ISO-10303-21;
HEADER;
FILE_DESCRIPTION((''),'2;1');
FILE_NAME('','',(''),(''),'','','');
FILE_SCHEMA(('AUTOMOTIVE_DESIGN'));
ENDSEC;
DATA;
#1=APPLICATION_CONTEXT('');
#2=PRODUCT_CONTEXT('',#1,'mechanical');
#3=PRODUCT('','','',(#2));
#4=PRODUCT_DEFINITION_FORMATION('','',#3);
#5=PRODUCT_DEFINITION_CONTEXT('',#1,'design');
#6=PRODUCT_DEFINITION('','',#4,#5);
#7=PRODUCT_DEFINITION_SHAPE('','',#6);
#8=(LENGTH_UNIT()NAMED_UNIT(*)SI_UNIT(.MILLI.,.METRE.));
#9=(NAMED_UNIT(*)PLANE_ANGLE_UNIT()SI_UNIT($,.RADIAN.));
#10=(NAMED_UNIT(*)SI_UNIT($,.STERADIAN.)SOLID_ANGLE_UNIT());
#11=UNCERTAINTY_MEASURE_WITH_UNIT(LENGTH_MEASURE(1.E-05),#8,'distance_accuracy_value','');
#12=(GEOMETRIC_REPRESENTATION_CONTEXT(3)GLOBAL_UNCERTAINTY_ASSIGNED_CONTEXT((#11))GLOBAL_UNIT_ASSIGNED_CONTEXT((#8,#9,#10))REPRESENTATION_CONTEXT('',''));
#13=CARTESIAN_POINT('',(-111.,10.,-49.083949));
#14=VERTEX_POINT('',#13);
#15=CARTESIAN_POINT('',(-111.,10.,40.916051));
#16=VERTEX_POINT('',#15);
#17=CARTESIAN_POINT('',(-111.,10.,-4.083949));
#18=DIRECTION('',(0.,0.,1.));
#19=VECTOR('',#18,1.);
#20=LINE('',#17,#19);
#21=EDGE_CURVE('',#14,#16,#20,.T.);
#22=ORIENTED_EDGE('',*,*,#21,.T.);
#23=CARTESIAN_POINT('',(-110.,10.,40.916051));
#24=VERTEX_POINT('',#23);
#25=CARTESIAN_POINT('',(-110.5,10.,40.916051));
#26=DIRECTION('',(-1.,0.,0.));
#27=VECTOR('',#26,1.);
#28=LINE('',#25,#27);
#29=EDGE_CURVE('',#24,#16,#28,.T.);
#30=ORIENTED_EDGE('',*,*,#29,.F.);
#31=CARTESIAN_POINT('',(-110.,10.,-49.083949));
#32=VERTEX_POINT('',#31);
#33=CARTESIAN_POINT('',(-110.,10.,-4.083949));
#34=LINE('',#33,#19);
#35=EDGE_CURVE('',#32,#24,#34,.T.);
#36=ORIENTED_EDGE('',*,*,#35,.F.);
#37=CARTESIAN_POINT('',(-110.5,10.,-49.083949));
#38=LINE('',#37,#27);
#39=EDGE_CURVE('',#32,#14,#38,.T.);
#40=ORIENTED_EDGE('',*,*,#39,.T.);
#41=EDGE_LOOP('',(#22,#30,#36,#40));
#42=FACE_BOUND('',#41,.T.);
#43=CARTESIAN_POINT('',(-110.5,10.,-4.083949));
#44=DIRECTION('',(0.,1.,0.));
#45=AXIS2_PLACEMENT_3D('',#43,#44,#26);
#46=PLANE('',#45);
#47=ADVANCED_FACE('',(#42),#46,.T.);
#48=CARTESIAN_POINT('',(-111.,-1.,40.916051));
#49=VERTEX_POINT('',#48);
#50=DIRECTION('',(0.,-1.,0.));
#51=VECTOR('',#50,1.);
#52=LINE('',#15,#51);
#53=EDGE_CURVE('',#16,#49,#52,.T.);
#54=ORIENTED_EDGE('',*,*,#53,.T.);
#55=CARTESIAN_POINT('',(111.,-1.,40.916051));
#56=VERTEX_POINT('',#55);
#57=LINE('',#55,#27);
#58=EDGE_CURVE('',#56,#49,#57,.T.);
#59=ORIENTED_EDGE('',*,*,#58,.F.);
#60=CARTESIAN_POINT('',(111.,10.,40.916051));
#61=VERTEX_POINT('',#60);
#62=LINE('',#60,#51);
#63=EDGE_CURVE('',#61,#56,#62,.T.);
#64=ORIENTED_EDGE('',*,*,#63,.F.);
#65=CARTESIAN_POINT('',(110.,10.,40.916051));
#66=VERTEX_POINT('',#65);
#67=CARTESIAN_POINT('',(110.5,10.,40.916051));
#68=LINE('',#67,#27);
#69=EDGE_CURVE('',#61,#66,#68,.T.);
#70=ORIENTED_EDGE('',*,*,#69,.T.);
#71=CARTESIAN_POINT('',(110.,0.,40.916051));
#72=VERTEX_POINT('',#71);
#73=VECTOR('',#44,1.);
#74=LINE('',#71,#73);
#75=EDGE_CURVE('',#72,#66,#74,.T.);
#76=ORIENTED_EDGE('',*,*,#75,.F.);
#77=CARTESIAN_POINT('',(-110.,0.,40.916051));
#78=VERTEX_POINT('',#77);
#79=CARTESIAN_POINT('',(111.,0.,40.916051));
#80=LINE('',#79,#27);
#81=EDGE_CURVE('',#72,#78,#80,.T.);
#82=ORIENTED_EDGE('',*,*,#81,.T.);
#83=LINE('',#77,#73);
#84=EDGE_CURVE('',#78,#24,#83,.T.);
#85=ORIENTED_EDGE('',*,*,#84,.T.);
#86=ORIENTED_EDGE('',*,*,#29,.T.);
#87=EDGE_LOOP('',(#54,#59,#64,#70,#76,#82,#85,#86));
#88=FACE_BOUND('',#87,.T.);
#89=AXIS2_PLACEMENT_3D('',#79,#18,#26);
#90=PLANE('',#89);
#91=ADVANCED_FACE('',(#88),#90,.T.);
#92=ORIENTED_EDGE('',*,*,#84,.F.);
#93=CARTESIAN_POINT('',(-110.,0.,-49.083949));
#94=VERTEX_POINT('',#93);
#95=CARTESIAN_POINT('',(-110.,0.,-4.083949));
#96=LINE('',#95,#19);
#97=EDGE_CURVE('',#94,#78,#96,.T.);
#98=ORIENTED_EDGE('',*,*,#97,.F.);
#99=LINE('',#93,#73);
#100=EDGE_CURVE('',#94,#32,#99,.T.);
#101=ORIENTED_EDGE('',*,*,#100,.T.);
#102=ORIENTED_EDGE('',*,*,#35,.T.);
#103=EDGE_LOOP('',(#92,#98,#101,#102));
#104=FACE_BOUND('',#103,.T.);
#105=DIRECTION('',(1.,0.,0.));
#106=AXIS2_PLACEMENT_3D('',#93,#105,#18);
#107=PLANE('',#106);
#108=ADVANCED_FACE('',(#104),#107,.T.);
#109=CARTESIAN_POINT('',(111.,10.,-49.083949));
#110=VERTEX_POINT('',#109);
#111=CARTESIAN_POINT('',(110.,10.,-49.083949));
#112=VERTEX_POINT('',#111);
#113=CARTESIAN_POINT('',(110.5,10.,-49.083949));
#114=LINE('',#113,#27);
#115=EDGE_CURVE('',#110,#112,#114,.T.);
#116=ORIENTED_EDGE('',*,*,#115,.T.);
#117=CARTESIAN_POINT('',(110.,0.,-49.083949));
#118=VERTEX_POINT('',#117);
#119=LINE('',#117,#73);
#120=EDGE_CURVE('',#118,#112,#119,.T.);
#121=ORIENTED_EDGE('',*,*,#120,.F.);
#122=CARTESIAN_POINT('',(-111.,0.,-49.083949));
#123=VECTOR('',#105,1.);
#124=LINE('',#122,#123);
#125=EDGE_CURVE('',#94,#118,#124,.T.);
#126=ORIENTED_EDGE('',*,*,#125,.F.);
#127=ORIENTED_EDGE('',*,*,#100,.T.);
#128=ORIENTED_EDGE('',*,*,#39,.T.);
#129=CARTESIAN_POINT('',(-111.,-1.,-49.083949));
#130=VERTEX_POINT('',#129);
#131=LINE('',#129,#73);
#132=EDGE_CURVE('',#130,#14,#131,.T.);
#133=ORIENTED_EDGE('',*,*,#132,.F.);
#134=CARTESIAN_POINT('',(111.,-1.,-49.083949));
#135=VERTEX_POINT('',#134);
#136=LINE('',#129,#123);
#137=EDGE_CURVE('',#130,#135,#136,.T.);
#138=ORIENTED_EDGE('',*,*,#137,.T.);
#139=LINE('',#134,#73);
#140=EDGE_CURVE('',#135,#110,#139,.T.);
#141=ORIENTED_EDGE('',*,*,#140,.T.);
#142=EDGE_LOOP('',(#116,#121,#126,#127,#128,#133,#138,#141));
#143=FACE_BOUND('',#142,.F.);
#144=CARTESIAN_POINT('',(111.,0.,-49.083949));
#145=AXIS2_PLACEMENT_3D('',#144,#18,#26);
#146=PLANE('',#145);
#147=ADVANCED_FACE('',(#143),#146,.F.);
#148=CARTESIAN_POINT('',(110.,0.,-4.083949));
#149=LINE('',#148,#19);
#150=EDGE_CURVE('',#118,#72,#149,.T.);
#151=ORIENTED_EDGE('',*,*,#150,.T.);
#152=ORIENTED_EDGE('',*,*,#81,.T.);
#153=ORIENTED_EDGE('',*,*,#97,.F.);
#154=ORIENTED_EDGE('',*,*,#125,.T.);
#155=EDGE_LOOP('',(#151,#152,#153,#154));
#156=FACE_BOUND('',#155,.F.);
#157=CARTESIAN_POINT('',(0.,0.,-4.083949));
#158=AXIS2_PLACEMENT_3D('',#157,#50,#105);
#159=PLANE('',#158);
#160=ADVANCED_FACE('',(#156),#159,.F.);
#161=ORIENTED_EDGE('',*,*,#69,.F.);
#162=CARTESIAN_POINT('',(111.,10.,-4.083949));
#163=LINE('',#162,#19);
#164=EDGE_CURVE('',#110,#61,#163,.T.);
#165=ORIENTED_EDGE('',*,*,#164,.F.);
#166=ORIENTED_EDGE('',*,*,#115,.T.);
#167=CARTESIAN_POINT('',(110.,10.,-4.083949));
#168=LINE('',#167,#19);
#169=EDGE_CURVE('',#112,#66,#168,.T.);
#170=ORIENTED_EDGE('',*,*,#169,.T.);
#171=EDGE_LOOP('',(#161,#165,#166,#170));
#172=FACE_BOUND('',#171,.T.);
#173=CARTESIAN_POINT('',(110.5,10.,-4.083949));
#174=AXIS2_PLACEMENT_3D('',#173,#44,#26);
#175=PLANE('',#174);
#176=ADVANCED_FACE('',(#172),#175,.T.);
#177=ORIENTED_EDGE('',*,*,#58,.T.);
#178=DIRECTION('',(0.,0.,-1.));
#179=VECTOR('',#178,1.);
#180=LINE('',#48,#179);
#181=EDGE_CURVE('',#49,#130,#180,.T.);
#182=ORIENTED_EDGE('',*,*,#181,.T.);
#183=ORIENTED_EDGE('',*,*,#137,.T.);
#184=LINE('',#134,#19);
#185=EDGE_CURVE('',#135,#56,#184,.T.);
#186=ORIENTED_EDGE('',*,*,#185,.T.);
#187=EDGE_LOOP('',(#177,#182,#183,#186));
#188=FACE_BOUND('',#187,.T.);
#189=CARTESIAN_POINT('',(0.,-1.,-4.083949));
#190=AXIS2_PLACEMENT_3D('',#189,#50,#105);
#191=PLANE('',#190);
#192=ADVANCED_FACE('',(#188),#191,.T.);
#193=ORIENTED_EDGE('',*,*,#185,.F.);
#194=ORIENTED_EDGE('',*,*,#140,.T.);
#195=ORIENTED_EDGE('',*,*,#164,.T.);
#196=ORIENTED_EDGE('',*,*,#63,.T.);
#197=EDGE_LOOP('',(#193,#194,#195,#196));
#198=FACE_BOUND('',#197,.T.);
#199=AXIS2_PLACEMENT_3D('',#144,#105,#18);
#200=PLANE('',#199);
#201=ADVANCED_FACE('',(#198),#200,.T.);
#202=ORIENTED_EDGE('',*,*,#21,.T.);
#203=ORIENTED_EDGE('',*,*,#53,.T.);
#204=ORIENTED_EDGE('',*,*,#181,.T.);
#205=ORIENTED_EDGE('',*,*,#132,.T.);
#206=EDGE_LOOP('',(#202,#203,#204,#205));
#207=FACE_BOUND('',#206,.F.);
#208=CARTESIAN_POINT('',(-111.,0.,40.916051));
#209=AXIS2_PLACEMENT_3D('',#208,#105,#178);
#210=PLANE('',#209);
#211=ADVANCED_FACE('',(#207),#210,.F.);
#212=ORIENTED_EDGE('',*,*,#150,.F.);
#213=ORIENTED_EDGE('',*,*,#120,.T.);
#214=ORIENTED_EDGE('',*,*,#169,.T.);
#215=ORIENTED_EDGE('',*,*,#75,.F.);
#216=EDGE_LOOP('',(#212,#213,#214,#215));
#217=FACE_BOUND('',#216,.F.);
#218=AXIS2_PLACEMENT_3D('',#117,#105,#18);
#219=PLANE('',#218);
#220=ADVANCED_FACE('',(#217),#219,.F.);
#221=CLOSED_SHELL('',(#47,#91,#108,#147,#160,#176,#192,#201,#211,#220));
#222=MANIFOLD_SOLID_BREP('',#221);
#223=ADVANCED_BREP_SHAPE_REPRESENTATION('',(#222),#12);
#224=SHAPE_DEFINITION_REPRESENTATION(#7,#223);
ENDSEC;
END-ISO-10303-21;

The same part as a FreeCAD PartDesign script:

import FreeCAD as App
import Part
import Sketcher
from FreeCAD import Vector
Q = App.Units.Quantity

doc = App.newDocument("Part")
body = doc.addObject("PartDesign::Body", "Body")

# Sketch on XZ plane
sketch1 = body.newObject("Sketcher::SketchObject", "Sketch")
sketch1.AttachmentSupport = (doc.getObject("XZ_Plane"), [""])
sketch1.MapMode = "FlatFace"
sketch1.addGeometry([
    Part.LineSegment(Vector(111, -49.083949, 0), Vector(111, 40.916051, 0)),
    Part.LineSegment(Vector(111, 40.916051, 0), Vector(-111, 40.916051, 0)),
    Part.LineSegment(Vector(-111, 40.916051, 0), Vector(-111, -49.083949, 0)),
    Part.LineSegment(Vector(-111, -49.083949, 0), Vector(111, -49.083949, 0)),
], False)
sketch1.addConstraint([
    Sketcher.Constraint("Coincident", 0, 2, 1, 1),
    Sketcher.Constraint("Coincident", 1, 2, 2, 1),
    Sketcher.Constraint("Coincident", 2, 2, 3, 1),
    Sketcher.Constraint("Coincident", 3, 2, 0, 1),
    Sketcher.Constraint("Vertical", 0),
    Sketcher.Constraint("Horizontal", 1),
    Sketcher.Constraint("Vertical", 2),
    Sketcher.Constraint("Horizontal", 3),
    Sketcher.Constraint("DistanceX", 1, 2, 1, 1, Q("222 mm")),
    Sketcher.Constraint("DistanceY", 0, 1, 0, 2, Q("90 mm")),
    Sketcher.Constraint("DistanceX", -1, 1, 0, 2, Q("111 mm")),
    Sketcher.Constraint("DistanceY", -1, 1, 0, 2, Q("40.916051 mm")),
])
pad1 = body.newObject("PartDesign::Pad", "Pad")
pad1.Profile = sketch1
pad1.Length = 1

# Sketch on XZ plane
sketch2 = body.newObject("Sketcher::SketchObject", "Sketch001")
sketch2.AttachmentSupport = (doc.getObject("XZ_Plane"), [""])
sketch2.MapMode = "FlatFace"
sketch2.addGeometry([
    Part.LineSegment(Vector(111, 40.916051, 0), Vector(111, -49.083949, 0)),  # 0
    Part.LineSegment(Vector(111, -49.083949, 0), Vector(110, -49.083949, 0)),  # 1
    Part.LineSegment(Vector(110, -49.083949, 0), Vector(110, 40.916051, 0)),  # 2
    Part.LineSegment(Vector(110, 40.916051, 0), Vector(111, 40.916051, 0)),  # 3
    Part.LineSegment(Vector(-110, 40.916051, 0), Vector(-110, -49.083949, 0)),  # 4
    Part.LineSegment(Vector(-110, -49.083949, 0), Vector(-111, -49.083949, 0)),  # 5
    Part.LineSegment(Vector(-111, -49.083949, 0), Vector(-111, 40.916051, 0)),  # 6
    Part.LineSegment(Vector(-111, 40.916051, 0), Vector(-110, 40.916051, 0)),  # 7
], False)
sketch2.addConstraint([
    Sketcher.Constraint("Coincident", 0, 2, 1, 1),
    Sketcher.Constraint("Coincident", 1, 2, 2, 1),
    Sketcher.Constraint("Coincident", 2, 2, 3, 1),
    Sketcher.Constraint("Coincident", 3, 2, 0, 1),
    Sketcher.Constraint("Coincident", 4, 2, 5, 1),
    Sketcher.Constraint("Coincident", 5, 2, 6, 1),
    Sketcher.Constraint("Coincident", 6, 2, 7, 1),
    Sketcher.Constraint("Coincident", 7, 2, 4, 1),
    Sketcher.Constraint("Vertical", 0),
    Sketcher.Constraint("Horizontal", 1),
    Sketcher.Constraint("Vertical", 2),
    Sketcher.Constraint("Horizontal", 3),
    Sketcher.Constraint("Vertical", 4),
    Sketcher.Constraint("Horizontal", 5),
    Sketcher.Constraint("Vertical", 6),
    Sketcher.Constraint("Horizontal", 7),
    Sketcher.Constraint("Symmetric", 1, 2, 4, 2, -2),
    Sketcher.Constraint("Symmetric", 3, 2, 6, 2, -2),
    Sketcher.Constraint("DistanceX", 1, 2, 1, 1, Q("1 mm")),
    Sketcher.Constraint("DistanceY", 0, 2, 0, 1, Q("90 mm")),
    Sketcher.Constraint("DistanceX", -1, 1, 0, 2, Q("111 mm")),
    Sketcher.Constraint("DistanceY", 0, 2, -1, 1, Q("49.083949 mm")),
])
pad2 = body.newObject("PartDesign::Pad", "Pad001")
pad2.Profile = sketch2
pad2.Length = 10
pad2.Reversed = True

doc.recompute()
